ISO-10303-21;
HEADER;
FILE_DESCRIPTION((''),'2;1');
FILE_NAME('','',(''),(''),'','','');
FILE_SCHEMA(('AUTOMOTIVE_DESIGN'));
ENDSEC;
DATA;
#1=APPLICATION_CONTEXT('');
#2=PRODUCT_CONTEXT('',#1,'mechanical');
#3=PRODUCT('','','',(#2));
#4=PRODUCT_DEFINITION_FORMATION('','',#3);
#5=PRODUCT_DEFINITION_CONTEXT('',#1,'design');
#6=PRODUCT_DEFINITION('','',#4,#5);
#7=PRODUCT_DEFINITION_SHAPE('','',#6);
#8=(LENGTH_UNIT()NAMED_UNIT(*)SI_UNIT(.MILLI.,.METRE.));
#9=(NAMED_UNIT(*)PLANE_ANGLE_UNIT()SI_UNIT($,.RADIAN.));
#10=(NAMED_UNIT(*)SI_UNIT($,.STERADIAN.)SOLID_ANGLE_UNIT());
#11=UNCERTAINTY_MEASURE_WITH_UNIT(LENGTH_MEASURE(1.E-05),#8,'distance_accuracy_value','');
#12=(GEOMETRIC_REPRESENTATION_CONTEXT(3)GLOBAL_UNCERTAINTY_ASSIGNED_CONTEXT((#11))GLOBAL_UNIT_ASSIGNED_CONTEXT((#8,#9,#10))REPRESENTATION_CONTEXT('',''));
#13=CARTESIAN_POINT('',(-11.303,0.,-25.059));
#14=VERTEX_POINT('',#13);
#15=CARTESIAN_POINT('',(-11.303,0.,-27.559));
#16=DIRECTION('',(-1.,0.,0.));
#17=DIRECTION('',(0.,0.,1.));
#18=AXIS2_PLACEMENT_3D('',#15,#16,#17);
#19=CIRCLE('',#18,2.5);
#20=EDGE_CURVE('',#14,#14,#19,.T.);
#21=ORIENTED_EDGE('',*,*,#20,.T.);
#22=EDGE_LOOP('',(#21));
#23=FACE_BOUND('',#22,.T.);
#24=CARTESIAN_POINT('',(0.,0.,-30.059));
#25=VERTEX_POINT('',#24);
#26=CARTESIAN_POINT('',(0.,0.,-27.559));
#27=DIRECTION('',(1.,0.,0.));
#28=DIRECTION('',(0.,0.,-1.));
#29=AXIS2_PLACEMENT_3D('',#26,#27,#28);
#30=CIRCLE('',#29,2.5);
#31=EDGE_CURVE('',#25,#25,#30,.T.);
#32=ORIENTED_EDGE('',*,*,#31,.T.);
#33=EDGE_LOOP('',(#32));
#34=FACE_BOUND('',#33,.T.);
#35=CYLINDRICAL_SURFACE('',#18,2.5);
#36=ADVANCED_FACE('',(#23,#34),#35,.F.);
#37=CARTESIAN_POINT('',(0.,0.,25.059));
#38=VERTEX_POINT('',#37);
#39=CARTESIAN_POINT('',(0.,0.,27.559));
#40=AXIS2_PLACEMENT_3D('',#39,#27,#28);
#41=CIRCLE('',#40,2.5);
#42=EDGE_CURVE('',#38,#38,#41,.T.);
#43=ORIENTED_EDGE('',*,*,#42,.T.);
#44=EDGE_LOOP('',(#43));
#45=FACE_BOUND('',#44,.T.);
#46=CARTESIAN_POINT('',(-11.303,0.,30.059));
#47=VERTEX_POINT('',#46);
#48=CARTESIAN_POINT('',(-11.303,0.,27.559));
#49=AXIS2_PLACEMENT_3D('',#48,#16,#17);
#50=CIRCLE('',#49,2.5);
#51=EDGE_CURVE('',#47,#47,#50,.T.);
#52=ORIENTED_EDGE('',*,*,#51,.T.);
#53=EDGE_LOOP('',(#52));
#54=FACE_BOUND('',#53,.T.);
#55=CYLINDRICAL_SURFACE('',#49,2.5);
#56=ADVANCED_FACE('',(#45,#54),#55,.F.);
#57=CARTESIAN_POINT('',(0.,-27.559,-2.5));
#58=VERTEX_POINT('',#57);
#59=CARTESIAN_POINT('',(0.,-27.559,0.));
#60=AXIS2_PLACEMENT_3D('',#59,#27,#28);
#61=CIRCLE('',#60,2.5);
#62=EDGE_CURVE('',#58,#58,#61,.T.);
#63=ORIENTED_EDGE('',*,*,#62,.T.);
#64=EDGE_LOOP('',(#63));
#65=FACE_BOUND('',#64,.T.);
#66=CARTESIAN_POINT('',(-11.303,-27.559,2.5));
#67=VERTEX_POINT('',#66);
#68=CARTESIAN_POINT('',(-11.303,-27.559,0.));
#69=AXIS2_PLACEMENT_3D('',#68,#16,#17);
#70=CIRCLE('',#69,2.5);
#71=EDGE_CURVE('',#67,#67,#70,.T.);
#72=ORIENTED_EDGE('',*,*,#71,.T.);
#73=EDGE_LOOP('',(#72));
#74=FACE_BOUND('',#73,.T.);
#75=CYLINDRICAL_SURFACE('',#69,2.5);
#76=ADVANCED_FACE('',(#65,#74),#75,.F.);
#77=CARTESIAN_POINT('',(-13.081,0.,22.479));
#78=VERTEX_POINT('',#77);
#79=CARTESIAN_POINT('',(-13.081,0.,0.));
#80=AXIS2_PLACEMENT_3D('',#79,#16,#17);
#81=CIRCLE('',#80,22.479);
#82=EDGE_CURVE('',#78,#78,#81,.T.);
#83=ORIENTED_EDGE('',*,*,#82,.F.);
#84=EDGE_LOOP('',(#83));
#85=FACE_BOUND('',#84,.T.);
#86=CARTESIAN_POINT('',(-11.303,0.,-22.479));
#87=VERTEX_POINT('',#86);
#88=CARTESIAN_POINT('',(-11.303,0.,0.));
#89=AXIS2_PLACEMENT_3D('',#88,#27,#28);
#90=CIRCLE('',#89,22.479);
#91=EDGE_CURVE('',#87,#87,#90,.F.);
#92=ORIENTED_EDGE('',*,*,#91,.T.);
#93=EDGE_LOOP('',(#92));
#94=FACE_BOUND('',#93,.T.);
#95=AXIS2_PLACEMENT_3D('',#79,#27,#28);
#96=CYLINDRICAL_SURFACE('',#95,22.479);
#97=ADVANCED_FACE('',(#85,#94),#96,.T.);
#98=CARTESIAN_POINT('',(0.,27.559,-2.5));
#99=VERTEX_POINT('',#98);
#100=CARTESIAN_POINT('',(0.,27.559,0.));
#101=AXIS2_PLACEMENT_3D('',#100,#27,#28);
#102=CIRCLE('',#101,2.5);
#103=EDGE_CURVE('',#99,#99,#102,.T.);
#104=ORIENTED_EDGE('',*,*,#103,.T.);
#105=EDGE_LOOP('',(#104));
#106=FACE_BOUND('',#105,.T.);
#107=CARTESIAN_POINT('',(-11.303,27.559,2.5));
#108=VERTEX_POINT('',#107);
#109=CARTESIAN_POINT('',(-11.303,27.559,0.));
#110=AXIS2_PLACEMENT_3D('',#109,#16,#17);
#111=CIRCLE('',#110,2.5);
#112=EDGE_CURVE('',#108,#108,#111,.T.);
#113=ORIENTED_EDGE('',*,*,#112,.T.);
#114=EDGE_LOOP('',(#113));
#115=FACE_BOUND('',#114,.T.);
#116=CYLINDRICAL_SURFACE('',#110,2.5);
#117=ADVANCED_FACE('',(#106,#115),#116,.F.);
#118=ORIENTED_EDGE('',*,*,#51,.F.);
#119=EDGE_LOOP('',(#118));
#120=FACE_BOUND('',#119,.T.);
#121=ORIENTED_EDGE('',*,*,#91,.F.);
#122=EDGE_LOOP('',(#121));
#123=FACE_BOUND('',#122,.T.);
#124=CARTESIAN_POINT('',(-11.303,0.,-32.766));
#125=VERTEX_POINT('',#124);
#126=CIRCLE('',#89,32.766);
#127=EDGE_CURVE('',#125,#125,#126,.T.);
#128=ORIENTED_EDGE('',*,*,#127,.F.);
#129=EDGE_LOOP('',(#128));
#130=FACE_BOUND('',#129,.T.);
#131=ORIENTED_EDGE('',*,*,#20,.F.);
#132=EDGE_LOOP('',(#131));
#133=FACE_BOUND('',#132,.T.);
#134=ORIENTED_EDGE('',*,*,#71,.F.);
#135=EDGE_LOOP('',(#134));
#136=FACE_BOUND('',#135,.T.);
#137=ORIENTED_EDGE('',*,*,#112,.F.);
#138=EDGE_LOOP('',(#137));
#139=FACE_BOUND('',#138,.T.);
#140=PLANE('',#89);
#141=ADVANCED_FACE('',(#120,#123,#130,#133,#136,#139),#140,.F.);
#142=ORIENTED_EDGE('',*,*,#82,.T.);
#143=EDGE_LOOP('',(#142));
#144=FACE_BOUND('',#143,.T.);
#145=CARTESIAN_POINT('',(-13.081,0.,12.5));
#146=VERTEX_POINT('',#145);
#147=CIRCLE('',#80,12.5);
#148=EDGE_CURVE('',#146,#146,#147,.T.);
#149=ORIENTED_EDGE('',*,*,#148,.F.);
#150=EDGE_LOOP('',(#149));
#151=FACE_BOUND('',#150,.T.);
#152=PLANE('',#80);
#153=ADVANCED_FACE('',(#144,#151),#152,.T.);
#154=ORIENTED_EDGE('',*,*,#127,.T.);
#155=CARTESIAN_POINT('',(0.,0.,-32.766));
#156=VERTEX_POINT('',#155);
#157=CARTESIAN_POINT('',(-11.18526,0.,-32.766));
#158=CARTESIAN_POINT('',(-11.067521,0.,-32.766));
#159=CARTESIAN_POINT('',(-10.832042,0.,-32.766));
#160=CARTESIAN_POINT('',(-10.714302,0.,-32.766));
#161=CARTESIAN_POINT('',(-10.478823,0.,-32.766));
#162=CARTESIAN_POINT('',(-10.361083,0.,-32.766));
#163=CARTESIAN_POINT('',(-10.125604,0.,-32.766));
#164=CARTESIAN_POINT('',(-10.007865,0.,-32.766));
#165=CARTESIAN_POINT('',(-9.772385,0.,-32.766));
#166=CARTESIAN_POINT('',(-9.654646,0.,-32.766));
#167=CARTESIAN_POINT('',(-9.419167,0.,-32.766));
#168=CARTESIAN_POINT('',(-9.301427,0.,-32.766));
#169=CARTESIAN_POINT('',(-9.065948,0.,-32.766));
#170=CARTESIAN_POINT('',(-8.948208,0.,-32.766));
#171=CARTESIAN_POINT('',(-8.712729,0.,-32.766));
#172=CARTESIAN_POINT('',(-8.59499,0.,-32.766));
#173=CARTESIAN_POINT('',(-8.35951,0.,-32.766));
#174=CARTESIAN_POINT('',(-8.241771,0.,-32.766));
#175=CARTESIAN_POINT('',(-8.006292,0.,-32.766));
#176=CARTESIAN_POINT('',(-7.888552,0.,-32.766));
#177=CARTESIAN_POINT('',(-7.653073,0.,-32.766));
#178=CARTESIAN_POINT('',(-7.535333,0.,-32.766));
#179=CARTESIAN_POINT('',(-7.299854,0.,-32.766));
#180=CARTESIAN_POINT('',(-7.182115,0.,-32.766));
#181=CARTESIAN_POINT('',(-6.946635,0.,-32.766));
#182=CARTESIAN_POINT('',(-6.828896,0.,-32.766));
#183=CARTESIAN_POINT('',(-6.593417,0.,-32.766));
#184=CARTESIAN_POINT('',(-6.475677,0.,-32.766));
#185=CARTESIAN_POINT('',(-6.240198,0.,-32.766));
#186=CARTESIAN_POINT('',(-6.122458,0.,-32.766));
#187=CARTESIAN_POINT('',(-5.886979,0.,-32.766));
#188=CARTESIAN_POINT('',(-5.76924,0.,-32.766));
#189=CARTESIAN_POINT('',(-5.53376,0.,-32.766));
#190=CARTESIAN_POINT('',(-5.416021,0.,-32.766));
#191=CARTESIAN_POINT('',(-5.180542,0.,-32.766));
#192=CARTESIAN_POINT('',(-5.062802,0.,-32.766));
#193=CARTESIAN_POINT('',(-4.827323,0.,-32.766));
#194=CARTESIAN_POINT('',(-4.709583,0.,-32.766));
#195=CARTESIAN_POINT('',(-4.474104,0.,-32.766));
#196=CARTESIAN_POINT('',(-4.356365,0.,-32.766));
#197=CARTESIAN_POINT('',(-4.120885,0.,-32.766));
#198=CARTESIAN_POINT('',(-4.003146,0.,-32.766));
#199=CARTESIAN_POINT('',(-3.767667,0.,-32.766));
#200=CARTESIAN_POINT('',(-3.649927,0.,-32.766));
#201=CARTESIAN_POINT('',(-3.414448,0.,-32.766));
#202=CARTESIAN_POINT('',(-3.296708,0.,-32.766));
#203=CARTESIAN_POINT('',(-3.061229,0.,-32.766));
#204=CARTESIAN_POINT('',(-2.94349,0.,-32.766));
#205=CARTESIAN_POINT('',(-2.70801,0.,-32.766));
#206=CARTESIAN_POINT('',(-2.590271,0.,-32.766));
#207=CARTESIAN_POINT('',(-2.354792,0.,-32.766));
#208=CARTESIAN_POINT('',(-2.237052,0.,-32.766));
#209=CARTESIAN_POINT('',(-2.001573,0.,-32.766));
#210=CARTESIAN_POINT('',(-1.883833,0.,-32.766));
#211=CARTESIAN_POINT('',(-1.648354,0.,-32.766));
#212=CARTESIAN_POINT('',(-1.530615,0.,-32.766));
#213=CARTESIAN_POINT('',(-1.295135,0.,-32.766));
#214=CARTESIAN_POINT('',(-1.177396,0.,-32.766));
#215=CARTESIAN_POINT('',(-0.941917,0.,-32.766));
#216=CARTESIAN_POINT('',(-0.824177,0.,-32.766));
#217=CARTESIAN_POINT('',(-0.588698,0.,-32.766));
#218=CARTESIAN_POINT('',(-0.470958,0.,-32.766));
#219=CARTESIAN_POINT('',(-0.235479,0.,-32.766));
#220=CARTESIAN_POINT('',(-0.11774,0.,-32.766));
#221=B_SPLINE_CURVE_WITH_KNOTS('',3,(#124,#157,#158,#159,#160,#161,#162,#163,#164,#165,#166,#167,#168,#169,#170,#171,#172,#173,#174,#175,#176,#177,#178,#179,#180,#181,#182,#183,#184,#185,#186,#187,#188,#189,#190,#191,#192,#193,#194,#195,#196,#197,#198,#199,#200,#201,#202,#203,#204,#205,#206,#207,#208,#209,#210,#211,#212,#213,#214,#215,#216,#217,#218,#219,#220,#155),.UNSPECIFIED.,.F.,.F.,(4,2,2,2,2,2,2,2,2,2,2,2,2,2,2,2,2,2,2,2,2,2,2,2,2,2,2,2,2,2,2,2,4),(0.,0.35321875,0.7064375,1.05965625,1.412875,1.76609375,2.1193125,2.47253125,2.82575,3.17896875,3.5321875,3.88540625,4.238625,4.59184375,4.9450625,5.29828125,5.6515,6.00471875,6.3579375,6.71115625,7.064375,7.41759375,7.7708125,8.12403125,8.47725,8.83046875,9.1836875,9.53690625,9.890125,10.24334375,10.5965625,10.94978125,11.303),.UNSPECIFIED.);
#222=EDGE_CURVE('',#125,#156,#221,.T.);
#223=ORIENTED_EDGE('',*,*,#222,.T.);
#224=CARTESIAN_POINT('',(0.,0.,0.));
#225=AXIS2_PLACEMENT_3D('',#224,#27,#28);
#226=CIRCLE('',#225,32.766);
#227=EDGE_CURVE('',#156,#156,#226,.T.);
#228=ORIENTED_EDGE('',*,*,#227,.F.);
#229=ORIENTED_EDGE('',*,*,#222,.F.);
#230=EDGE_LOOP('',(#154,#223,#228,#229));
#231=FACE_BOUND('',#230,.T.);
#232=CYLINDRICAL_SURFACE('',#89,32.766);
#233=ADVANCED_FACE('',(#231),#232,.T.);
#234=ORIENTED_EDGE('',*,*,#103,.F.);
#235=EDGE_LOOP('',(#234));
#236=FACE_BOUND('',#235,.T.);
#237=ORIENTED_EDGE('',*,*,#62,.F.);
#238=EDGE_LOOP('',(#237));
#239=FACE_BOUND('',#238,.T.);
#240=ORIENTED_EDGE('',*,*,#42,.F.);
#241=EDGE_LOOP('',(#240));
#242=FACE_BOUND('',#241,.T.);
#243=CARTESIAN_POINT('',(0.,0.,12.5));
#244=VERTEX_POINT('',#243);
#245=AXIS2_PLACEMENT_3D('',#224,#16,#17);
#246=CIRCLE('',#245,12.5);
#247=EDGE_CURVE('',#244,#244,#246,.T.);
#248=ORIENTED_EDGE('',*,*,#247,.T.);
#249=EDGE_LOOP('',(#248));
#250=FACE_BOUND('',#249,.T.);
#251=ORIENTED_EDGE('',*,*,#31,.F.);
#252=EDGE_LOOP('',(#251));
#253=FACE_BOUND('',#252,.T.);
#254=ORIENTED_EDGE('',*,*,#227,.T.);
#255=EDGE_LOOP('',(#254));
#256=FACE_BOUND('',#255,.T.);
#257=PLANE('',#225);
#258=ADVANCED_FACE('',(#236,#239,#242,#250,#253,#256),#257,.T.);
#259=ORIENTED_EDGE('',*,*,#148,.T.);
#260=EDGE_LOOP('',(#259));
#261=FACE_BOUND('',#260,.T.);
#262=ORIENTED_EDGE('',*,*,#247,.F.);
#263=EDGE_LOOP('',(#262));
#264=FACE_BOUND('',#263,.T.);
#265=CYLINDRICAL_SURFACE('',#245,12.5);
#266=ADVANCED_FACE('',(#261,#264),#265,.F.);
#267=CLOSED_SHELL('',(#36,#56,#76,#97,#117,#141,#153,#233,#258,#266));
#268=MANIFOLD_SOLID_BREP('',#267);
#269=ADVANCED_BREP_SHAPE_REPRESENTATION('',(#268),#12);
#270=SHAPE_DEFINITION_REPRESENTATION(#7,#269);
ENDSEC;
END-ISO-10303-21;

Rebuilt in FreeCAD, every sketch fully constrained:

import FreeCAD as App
import Part
import Sketcher
from FreeCAD import Vector
Q = App.Units.Quantity

doc = App.newDocument("Part")
body = doc.addObject("PartDesign::Body", "Body")

sketch1 = doc.addObject("Sketcher::SketchObject", "Sketch")
body.addObject(sketch1)
sketch1.AttachmentSupport = (doc.YZ_Plane, [""])
sketch1.MapMode = "FlatFace"
sketch1.addGeometry(Part.Circle(Vector(0, 0, 0), Vector(0, 0, 1), 33), False)
sketch1.addConstraint([
    Sketcher.Constraint("Coincident", 0, 3, -1, 1),
    Sketcher.Constraint("Diameter", 0, Q("2.58 in")),
])
pad1 = doc.addObject("PartDesign::Pad", "Pad")
body.addObject(pad1)
pad1.Profile = sketch1
pad1.Length = Q("0.445 in")
pad1.Reversed = True

sketch2 = doc.addObject("Sketcher::SketchObject", "Sketch001")
body.addObject(sketch2)
sketch2.AttachmentSupport = (doc.YZ_Plane, [""])
sketch2.MapMode = "FlatFace"
sketch2.AttachmentOffset = App.Placement(Vector(0, 0, -0.445 * 25.4), App.Rotation())
sketch2.addGeometry(Part.Circle(Vector(0, 0, 0), Vector(0, 0, 1), 22), False)
sketch2.addConstraint([
    Sketcher.Constraint("Coincident", 0, 3, -1, 1),
    Sketcher.Constraint("Diameter", 0, Q("1.77 in")),
])
pad2 = doc.addObject("PartDesign::Pad", "Pad001")
body.addObject(pad2)
pad2.Profile = sketch2
pad2.Length = Q("0.07 in")
pad2.Reversed = True

sketch3 = doc.addObject("Sketcher::SketchObject", "Sketch002")
body.addObject(sketch3)
sketch3.AttachmentSupport = (doc.YZ_Plane, [""])
sketch3.MapMode = "FlatFace"
sketch3.AttachmentOffset = App.Placement(Vector(0, 0, -0.515 * 25.4), App.Rotation())
sketch3.addGeometry(Part.Circle(Vector(0, 0, 0), Vector(0, 0, 1), 12), False)
sketch3.addConstraint([
    Sketcher.Constraint("Coincident", 0, 3, -1, 1),
    Sketcher.Constraint("Diameter", 0, 25.0),
])
pocket1 = doc.addObject("PartDesign::Pocket", "Pocket")
body.addObject(pocket1)
pocket1.Profile = sketch3
pocket1.Type = "ThroughAll"
pocket1.Reversed = True

sketch4 = doc.addObject("Sketcher::SketchObject", "Sketch003")
body.addObject(sketch4)
sketch4.AttachmentSupport = (doc.YZ_Plane, [""])
sketch4.MapMode = "FlatFace"
sketch4.AttachmentOffset = App.Placement(Vector(0, 0, -0.445 * 25.4), App.Rotation())
sketch4.addGeometry([
    Part.Circle(Vector(27.6, 0, 0), Vector(0, 0, 1), 2.5),
    Part.Circle(Vector(0, 27.6, 0), Vector(0, 0, 1), 2.5),
    Part.Circle(Vector(-27.6, 0, 0), Vector(0, 0, 1), 2.5),
    Part.Circle(Vector(0, -27.6, 0), Vector(0, 0, 1), 2.5),
], False)
sketch4.addConstraint([
    Sketcher.Constraint("Equal", 0, 1),
    Sketcher.Constraint("Equal", 1, 2),
    Sketcher.Constraint("Equal", 2, 3),
    Sketcher.Constraint("Symmetric", 0, 3, 2, 3, -1, 1),
    Sketcher.Constraint("Symmetric", 1, 3, 3, 3, -1, 1),
    Sketcher.Constraint("PointOnObject", 0, 3, -1),
    Sketcher.Constraint("PointOnObject", 1, 3, -2),
    Sketcher.Constraint("Diameter", 0, 5.0),
    Sketcher.Constraint("DistanceX", 2, 3, 0, 3, Q("2.17 in")),
    Sketcher.Constraint("DistanceY", 3, 3, 1, 3, Q("2.17 in")),
])
doc.recompute()
hole = doc.addObject("PartDesign::Hole", "Hole")
body.addObject(hole)
hole.Profile = sketch4
hole.ThreadType = "None"
hole.Diameter = 5
hole.DepthType = "Dimension"
hole.Depth = Q("0.49 in")
hole.DrillPoint = "Angled"
hole.DrillPointAngle = 118
hole.Reversed = True

doc.recompute()
